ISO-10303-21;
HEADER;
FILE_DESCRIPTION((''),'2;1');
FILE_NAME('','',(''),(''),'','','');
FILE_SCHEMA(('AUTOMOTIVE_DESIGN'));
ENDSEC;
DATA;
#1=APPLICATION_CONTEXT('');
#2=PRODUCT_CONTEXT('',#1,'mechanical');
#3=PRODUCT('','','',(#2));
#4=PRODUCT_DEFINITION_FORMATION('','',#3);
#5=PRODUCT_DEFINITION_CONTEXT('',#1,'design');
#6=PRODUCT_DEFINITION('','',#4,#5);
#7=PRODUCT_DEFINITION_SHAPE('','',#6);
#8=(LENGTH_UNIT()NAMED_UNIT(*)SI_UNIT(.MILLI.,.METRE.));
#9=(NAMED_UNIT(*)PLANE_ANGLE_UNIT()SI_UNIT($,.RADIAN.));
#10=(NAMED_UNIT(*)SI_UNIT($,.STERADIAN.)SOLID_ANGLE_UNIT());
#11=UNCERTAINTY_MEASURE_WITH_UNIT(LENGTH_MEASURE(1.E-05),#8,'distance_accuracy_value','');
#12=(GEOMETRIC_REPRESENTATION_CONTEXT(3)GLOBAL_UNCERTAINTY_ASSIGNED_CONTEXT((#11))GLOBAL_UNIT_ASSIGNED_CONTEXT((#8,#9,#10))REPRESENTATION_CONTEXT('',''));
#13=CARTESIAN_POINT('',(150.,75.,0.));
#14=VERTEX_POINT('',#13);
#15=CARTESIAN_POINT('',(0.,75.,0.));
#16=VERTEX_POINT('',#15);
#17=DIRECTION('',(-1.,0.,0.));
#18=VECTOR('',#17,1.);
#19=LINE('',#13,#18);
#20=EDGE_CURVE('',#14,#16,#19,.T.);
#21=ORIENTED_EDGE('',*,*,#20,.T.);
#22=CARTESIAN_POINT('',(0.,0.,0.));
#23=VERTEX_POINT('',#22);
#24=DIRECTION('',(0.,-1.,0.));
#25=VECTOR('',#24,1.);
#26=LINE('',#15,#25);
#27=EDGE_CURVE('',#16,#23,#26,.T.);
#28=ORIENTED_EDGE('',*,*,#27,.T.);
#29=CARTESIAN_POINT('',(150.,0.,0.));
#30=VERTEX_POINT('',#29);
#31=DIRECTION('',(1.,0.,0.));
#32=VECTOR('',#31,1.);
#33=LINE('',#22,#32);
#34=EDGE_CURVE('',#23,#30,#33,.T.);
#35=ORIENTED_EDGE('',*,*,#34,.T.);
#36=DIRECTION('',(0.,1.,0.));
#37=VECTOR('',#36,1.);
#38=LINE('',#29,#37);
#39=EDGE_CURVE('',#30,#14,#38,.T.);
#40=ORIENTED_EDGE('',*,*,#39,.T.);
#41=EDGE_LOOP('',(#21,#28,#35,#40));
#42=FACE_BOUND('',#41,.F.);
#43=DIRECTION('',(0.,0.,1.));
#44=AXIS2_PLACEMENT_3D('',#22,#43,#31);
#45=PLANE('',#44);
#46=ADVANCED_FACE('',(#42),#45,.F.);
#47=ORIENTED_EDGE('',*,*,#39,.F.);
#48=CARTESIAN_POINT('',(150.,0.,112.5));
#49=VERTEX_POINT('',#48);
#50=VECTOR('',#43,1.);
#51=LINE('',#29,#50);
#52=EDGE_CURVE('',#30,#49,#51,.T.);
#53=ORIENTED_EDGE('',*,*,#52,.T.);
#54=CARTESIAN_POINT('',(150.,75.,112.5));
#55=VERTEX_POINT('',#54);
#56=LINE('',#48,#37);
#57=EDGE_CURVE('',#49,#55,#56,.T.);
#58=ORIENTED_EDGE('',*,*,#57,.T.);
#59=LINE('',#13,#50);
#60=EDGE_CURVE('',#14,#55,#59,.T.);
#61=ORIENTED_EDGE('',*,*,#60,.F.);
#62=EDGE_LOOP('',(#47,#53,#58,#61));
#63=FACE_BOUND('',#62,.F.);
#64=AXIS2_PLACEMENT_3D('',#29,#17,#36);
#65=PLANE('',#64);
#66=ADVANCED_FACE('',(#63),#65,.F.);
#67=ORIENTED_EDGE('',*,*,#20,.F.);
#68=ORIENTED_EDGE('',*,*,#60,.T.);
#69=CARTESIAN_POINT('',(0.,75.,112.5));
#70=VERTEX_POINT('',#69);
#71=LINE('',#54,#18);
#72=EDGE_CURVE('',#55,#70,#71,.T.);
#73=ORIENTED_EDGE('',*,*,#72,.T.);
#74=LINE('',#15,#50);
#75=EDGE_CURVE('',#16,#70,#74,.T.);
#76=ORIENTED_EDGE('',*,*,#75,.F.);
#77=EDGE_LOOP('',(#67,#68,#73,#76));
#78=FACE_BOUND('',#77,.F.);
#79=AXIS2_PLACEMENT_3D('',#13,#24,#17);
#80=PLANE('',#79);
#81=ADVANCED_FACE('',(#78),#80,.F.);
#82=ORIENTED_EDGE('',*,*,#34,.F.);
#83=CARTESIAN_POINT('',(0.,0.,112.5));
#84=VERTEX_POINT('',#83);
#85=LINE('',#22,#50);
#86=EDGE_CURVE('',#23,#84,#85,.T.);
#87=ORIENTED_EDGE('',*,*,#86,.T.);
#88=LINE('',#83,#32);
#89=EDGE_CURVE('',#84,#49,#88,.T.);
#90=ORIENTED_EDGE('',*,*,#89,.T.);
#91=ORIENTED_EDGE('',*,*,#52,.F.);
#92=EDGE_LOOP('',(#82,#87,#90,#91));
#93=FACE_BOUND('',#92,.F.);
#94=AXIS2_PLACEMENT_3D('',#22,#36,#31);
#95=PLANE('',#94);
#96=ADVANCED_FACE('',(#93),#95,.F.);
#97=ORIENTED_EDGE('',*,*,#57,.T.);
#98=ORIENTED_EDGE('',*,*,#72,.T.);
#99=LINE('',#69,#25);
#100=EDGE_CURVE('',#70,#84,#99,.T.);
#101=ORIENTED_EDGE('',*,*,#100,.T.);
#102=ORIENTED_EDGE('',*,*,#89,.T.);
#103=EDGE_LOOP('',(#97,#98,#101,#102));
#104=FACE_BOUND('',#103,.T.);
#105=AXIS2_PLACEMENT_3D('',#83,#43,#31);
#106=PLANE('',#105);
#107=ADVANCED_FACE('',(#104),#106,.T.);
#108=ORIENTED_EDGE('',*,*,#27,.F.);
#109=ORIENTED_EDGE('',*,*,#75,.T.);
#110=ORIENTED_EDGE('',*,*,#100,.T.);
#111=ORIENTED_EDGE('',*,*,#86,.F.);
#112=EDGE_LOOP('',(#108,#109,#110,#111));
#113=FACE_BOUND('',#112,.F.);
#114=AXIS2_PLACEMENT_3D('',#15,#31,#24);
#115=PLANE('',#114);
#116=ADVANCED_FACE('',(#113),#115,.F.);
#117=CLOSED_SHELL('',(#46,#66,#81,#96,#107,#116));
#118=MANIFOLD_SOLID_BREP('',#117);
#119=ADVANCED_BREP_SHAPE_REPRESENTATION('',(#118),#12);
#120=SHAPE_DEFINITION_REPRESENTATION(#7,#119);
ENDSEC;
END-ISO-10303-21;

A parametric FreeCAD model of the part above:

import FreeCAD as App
import Part
import Sketcher

V = App.Vector
Q = App.Units.Quantity

doc = App.newDocument("Part")
body = doc.addObject("PartDesign::Body", "Body")

# Sketch on XY plane
sketch1 = body.newObject("Sketcher::SketchObject", "Sketch")
sketch1.AttachmentSupport = (doc.getObject("XY_Plane"), [""])
sketch1.MapMode = "FlatFace"
sketch1.addGeometry([
    Part.LineSegment(V(0, 75, 0), V(0, 0, 0)),
    Part.LineSegment(V(0, 0, 0), V(150, 0, 0)),
    Part.LineSegment(V(150, 0, 0), V(150, 75, 0)),
    Part.LineSegment(V(150, 75, 0), V(0, 75, 0)),
], False)
sketch1.addConstraint([
    Sketcher.Constraint("Coincident", 0, 2, 1, 1),
    Sketcher.Constraint("Coincident", 1, 2, 2, 1),
    Sketcher.Constraint("Coincident", 2, 2, 3, 1),
    Sketcher.Constraint("Coincident", 3, 2, 0, 1),
    Sketcher.Constraint("Vertical", 0),
    Sketcher.Constraint("Horizontal", 1),
    Sketcher.Constraint("Vertical", 2),
    Sketcher.Constraint("Horizontal", 3),
    Sketcher.Constraint("Coincident", 0, 2, -1, 1),
    Sketcher.Constraint("DistanceX", 1, 1, 1, 2, Q("150 mm")),
    Sketcher.Constraint("DistanceY", 0, 2, 0, 1, Q("75 mm")),
])
pad1 = body.newObject("PartDesign::Pad", "Pad")
pad1.Profile = sketch1
pad1.Length = 112.5

doc.recompute()
